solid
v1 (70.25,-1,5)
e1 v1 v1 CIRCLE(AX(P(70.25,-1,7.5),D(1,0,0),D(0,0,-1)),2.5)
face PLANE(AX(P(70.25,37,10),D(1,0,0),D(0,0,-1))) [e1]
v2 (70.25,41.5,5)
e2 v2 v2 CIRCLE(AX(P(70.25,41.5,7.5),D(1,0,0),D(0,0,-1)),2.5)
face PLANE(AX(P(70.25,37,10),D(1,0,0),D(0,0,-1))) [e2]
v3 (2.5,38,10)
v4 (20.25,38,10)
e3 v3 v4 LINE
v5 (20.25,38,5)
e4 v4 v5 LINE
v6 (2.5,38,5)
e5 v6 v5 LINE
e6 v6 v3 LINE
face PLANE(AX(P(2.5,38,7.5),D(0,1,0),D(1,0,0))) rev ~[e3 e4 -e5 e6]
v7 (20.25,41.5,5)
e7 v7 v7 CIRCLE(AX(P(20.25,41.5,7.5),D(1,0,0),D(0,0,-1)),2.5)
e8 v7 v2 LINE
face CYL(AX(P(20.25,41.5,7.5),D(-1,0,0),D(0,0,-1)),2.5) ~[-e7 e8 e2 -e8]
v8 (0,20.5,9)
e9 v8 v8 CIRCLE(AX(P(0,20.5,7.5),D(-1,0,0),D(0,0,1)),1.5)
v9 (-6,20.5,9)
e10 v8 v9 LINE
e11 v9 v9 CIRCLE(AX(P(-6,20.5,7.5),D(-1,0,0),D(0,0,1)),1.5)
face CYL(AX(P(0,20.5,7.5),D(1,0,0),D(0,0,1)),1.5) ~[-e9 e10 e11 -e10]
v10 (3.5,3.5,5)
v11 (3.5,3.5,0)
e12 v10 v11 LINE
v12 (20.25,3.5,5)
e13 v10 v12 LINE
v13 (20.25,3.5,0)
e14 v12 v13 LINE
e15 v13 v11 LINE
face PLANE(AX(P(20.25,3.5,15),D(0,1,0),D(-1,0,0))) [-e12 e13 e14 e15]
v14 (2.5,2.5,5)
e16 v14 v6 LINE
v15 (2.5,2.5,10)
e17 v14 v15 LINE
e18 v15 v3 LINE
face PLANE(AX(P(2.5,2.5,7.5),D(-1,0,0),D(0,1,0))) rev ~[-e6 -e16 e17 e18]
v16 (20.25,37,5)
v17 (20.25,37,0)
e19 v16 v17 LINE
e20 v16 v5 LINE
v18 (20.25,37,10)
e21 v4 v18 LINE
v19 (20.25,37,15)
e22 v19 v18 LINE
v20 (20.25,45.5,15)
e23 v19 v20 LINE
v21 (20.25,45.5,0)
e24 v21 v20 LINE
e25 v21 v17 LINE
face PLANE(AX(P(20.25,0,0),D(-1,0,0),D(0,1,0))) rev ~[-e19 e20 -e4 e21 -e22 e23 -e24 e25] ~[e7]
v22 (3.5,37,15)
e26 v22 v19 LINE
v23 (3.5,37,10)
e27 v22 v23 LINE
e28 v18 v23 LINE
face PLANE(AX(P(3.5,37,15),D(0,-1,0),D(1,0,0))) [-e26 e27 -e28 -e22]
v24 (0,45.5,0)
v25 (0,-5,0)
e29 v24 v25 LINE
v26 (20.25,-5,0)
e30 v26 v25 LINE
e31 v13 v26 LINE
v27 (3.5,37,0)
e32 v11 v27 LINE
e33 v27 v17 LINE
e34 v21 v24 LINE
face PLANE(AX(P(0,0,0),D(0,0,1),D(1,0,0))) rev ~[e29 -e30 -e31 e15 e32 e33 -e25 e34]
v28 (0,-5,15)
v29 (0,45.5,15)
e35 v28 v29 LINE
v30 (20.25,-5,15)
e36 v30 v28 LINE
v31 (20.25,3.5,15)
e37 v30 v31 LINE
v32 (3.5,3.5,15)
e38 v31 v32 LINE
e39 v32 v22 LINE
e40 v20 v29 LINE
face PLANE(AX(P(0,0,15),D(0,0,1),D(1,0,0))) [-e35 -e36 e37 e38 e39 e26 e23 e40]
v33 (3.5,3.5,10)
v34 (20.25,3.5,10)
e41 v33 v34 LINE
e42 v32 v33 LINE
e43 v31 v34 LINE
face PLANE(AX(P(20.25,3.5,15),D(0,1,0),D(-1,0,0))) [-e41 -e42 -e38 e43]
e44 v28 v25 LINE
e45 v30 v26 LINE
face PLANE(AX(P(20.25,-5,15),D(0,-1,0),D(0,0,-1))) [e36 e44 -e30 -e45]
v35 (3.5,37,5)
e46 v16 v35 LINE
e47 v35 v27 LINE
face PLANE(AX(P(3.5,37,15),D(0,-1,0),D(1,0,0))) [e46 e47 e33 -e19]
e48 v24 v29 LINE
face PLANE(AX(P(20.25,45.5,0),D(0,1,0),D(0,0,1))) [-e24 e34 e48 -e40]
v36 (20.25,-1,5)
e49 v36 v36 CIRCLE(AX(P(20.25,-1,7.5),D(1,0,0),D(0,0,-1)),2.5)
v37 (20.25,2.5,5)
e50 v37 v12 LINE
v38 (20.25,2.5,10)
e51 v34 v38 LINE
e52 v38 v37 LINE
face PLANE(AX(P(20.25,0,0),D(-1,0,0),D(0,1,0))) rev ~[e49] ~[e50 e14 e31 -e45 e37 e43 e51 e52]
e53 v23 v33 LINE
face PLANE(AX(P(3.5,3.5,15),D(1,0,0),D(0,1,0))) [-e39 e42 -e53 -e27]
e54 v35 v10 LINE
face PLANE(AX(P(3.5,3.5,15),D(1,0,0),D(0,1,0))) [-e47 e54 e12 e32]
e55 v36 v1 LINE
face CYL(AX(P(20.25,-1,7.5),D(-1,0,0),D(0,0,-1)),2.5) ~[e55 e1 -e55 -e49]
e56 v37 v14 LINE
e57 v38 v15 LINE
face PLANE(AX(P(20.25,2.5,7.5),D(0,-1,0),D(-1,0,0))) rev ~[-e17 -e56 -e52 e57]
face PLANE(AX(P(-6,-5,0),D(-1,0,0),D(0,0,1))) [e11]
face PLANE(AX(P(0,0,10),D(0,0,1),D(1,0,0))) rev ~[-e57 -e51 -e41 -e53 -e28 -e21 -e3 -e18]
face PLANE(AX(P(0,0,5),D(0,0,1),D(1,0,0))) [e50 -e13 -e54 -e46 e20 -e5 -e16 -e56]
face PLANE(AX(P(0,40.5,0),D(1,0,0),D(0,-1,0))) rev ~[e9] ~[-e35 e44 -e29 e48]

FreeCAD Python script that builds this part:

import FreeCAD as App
import Part
import Sketcher

V = App.Vector
Q = App.Units.Quantity

doc = App.newDocument("Part")
body = doc.addObject("PartDesign::Body", "Body")

sketch1 = body.newObject("Sketcher::SketchObject", "Sketch")
sketch1.AttachmentSupport = (doc.getObject("XY_Plane"), [""])
sketch1.MapMode = "FlatFace"
sketch1.addGeometry([
    Part.LineSegment(V(0, 40, 0), V(0, 0, 0)),
    Part.LineSegment(V(0, 0, 0), V(20, 0, 0)),
    Part.LineSegment(V(20, 0, 0), V(20, 40, 0)),
    Part.LineSegment(V(20, 40, 0), V(0, 40, 0)),
], False)
sketch1.addConstraint([
    Sketcher.Constraint("Coincident", 0, 2, 1, 1),
    Sketcher.Constraint("Coincident", 1, 2, 2, 1),
    Sketcher.Constraint("Coincident", 2, 2, 3, 1),
    Sketcher.Constraint("Coincident", 3, 2, 0, 1),
    Sketcher.Constraint("Vertical", 0),
    Sketcher.Constraint("Horizontal", 1),
    Sketcher.Constraint("Vertical", 2),
    Sketcher.Constraint("Horizontal", 3),
    Sketcher.Constraint("Coincident", 0, 2, -1, 1),
    Sketcher.Constraint("DistanceY", 0, 2, 0, 1, Q("40.5 mm")),
    Sketcher.Constraint("DistanceX", 1, 1, 1, 2, Q("20.25 mm")),
])
pad1 = body.newObject("PartDesign::Pad", "Pad")
pad1.Profile = sketch1
pad1.Length = 15

sketch2 = body.newObject("Sketcher::SketchObject", "Sketch001")
sketch2.AttachmentSupport = (doc.getObject("XY_Plane"), [""])
sketch2.MapMode = "FlatFace"
sketch2.AttachmentOffset = App.Placement(V(0, 0, 15), App.Rotation())
sketch2.addGeometry([
    Part.LineSegment(V(20, 37, 0), V(4, 37, 0)),
    Part.LineSegment(V(4, 37, 0), V(4, 4, 0)),
    Part.LineSegment(V(4, 4, 0), V(20, 4, 0)),
    Part.LineSegment(V(20, 4, 0), V(20, 37, 0)),
], False)
sketch2.addConstraint([
    Sketcher.Constraint("Coincident", 0, 2, 1, 1),
    Sketcher.Constraint("Coincident", 1, 2, 2, 1),
    Sketcher.Constraint("Coincident", 2, 2, 3, 1),
    Sketcher.Constraint("Coincident", 3, 2, 0, 1),
    Sketcher.Constraint("Horizontal", 0),
    Sketcher.Constraint("Vertical", 1),
    Sketcher.Constraint("Horizontal", 2),
    Sketcher.Constraint("Vertical", 3),
    Sketcher.Constraint("DistanceX", 0, 2, 0, 1, Q("16.75 mm")),
    Sketcher.Constraint("DistanceX", -1, 1, 0, 2, Q("3.5 mm")),
    Sketcher.Constraint("DistanceY", -1, 1, 1, 2, Q("3.5 mm")),
    Sketcher.Constraint("DistanceY", 1, 2, 1, 1, Q("33.5 mm")),
])
pocket1 = body.newObject("PartDesign::Pocket", "Pocket")
pocket1.Profile = sketch2
pocket1.Length = 15

sketch3 = body.newObject("Sketcher::SketchObject", "Sketch002")
sketch3.AttachmentSupport = (doc.getObject("XY_Plane"), [""])
sketch3.MapMode = "FlatFace"
sketch3.AttachmentOffset = App.Placement(V(0, 0, 7.5), App.Rotation())
sketch3.addGeometry([
    Part.LineSegment(V(20, 38, 0), V(2, 38, 0)),
    Part.LineSegment(V(2, 38, 0), V(2, 2, 0)),
    Part.LineSegment(V(2, 2, 0), V(20, 2, 0)),
    Part.LineSegment(V(20, 2, 0), V(20, 38, 0)),
], False)
sketch3.addConstraint([
    Sketcher.Constraint("Coincident", 0, 2, 1, 1),
    Sketcher.Constraint("Coincident", 1, 2, 2, 1),
    Sketcher.Constraint("Coincident", 2, 2, 3, 1),
    Sketcher.Constraint("Coincident", 3, 2, 0, 1),
    Sketcher.Constraint("Horizontal", 0),
    Sketcher.Constraint("Vertical", 1),
    Sketcher.Constraint("Horizontal", 2),
    Sketcher.Constraint("Vertical", 3),
    Sketcher.Constraint("DistanceX", -1, 1, 0, 2, Q("2.5 mm")),
    Sketcher.Constraint("DistanceY", -1, 1, 1, 2, Q("2.5 mm")),
    Sketcher.Constraint("DistanceY", 1, 2, 1, 1, Q("35.5 mm")),
    Sketcher.Constraint("DistanceX", 0, 2, 0, 1, Q("17.75 mm")),
])
pocket2 = body.newObject("PartDesign::Pocket", "Pocket001")
pocket2.Profile = sketch3
pocket2.Length = 5
pocket2.Midplane = True

sketch4 = body.newObject("Sketcher::SketchObject", "Sketch003")
sketch4.AttachmentSupport = (doc.getObject("YZ_Plane"), [""])
sketch4.MapMode = "FlatFace"
sketch4.AttachmentOffset = App.Placement(V(0, 0, 20.25), App.Rotation())
sketch4.addGeometry([
    Part.LineSegment(V(40, 15, 0), V(40, 0, 0)),
    Part.LineSegment(V(40, 0, 0), V(46, 0, 0)),
    Part.LineSegment(V(46, 0, 0), V(46, 15, 0)),
    Part.LineSegment(V(46, 15, 0), V(40, 15, 0)),
    Part.LineSegment(V(-5, 0, 0), V(0, 0, 0)),
    Part.LineSegment(V(0, 0, 0), V(0, 15, 0)),
    Part.LineSegment(V(0, 15, 0), V(-5, 15, 0)),
    Part.LineSegment(V(-5, 15, 0), V(-5, 0, 0)),
], False)
sketch4.addConstraint([
    Sketcher.Constraint("Coincident", 0, 2, 1, 1),
    Sketcher.Constraint("Coincident", 1, 2, 2, 1),
    Sketcher.Constraint("Coincident", 2, 2, 3, 1),
    Sketcher.Constraint("Coincident", 3, 2, 0, 1),
    Sketcher.Constraint("Coincident", 4, 2, 5, 1),
    Sketcher.Constraint("Coincident", 5, 2, 6, 1),
    Sketcher.Constraint("Coincident", 6, 2, 7, 1),
    Sketcher.Constraint("Coincident", 7, 2, 4, 1),
    Sketcher.Constraint("Vertical", 0),
    Sketcher.Constraint("Horizontal", 1),
    Sketcher.Constraint("Vertical", 2),
    Sketcher.Constraint("Horizontal", 3),
    Sketcher.Constraint("Horizontal", 4),
    Sketcher.Constraint("Vertical", 5),
    Sketcher.Constraint("Horizontal", 6),
    Sketcher.Constraint("Vertical", 7),
    Sketcher.Constraint("Coincident", 4, 2, -1, 1),
    Sketcher.Constraint("PointOnObject", 0, 2, -1),
    Sketcher.Constraint("Horizontal", 3, 2, 5, 2),
    Sketcher.Constraint("Equal", 3, 4),
    Sketcher.Constraint("DistanceX", 1, 1, 1, 2, Q("5 mm")),
    Sketcher.Constraint("DistanceY", 0, 2, 0, 1, Q("15 mm")),
    Sketcher.Constraint("DistanceX", -1, 1, 0, 2, Q("40.5 mm")),
])
pad2 = body.newObject("PartDesign::Pad", "Pad001")
pad2.Profile = sketch4
pad2.Length = 20.25
pad2.Reversed = True

sketch5 = body.newObject("Sketcher::SketchObject", "Sketch004")
sketch5.AttachmentSupport = (doc.getObject("YZ_Plane"), [""])
sketch5.MapMode = "FlatFace"
sketch5.AttachmentOffset = App.Placement(V(0, 0, 20.25), App.Rotation())
sketch5.addGeometry([
    Part.Circle(V(41.5, 7.5, 0), V(0, 0, 1), 2.5),
    Part.Circle(V(-1, 7.5, 0), V(0, 0, 1), 2.5),
], False)
sketch5.addConstraint([
    Sketcher.Constraint("Equal", 0, 1),
    Sketcher.Constraint("Horizontal", 0, 3, 1, 3),
    Sketcher.Constraint("Diameter", 0, Q("5 mm")),
    Sketcher.Constraint("DistanceY", -1, 1, 0, 3, Q("7.5 mm")),
    Sketcher.Constraint("DistanceX", 1, 3, -1, 1, Q("1 mm")),
    Sketcher.Constraint("DistanceX", -1, 1, 0, 3, Q("41.5 mm")),
])
pad3 = body.newObject("PartDesign::Pad", "Pad002")
pad3.Profile = sketch5
pad3.Length = 50

sketch6 = body.newObject("Sketcher::SketchObject", "Sketch005")
sketch6.AttachmentSupport = (doc.getObject("YZ_Plane"), [""])
sketch6.MapMode = "FlatFace"
sketch6.addGeometry(Part.Circle(V(20.5, 7.5, 0), V(0, 0, 1), 1.5), False)
sketch6.addConstraint([
    Sketcher.Constraint("Diameter", 0, Q("3 mm")),
    Sketcher.Constraint("DistanceY", -1, 1, 0, 3, Q("7.5 mm")),
    Sketcher.Constraint("DistanceX", -1, 1, 0, 3, Q("20.5 mm")),
])
pad4 = body.newObject("PartDesign::Pad", "Pad003")
pad4.Profile = sketch6
pad4.Length = 6
pad4.Reversed = True

doc.recompute()
